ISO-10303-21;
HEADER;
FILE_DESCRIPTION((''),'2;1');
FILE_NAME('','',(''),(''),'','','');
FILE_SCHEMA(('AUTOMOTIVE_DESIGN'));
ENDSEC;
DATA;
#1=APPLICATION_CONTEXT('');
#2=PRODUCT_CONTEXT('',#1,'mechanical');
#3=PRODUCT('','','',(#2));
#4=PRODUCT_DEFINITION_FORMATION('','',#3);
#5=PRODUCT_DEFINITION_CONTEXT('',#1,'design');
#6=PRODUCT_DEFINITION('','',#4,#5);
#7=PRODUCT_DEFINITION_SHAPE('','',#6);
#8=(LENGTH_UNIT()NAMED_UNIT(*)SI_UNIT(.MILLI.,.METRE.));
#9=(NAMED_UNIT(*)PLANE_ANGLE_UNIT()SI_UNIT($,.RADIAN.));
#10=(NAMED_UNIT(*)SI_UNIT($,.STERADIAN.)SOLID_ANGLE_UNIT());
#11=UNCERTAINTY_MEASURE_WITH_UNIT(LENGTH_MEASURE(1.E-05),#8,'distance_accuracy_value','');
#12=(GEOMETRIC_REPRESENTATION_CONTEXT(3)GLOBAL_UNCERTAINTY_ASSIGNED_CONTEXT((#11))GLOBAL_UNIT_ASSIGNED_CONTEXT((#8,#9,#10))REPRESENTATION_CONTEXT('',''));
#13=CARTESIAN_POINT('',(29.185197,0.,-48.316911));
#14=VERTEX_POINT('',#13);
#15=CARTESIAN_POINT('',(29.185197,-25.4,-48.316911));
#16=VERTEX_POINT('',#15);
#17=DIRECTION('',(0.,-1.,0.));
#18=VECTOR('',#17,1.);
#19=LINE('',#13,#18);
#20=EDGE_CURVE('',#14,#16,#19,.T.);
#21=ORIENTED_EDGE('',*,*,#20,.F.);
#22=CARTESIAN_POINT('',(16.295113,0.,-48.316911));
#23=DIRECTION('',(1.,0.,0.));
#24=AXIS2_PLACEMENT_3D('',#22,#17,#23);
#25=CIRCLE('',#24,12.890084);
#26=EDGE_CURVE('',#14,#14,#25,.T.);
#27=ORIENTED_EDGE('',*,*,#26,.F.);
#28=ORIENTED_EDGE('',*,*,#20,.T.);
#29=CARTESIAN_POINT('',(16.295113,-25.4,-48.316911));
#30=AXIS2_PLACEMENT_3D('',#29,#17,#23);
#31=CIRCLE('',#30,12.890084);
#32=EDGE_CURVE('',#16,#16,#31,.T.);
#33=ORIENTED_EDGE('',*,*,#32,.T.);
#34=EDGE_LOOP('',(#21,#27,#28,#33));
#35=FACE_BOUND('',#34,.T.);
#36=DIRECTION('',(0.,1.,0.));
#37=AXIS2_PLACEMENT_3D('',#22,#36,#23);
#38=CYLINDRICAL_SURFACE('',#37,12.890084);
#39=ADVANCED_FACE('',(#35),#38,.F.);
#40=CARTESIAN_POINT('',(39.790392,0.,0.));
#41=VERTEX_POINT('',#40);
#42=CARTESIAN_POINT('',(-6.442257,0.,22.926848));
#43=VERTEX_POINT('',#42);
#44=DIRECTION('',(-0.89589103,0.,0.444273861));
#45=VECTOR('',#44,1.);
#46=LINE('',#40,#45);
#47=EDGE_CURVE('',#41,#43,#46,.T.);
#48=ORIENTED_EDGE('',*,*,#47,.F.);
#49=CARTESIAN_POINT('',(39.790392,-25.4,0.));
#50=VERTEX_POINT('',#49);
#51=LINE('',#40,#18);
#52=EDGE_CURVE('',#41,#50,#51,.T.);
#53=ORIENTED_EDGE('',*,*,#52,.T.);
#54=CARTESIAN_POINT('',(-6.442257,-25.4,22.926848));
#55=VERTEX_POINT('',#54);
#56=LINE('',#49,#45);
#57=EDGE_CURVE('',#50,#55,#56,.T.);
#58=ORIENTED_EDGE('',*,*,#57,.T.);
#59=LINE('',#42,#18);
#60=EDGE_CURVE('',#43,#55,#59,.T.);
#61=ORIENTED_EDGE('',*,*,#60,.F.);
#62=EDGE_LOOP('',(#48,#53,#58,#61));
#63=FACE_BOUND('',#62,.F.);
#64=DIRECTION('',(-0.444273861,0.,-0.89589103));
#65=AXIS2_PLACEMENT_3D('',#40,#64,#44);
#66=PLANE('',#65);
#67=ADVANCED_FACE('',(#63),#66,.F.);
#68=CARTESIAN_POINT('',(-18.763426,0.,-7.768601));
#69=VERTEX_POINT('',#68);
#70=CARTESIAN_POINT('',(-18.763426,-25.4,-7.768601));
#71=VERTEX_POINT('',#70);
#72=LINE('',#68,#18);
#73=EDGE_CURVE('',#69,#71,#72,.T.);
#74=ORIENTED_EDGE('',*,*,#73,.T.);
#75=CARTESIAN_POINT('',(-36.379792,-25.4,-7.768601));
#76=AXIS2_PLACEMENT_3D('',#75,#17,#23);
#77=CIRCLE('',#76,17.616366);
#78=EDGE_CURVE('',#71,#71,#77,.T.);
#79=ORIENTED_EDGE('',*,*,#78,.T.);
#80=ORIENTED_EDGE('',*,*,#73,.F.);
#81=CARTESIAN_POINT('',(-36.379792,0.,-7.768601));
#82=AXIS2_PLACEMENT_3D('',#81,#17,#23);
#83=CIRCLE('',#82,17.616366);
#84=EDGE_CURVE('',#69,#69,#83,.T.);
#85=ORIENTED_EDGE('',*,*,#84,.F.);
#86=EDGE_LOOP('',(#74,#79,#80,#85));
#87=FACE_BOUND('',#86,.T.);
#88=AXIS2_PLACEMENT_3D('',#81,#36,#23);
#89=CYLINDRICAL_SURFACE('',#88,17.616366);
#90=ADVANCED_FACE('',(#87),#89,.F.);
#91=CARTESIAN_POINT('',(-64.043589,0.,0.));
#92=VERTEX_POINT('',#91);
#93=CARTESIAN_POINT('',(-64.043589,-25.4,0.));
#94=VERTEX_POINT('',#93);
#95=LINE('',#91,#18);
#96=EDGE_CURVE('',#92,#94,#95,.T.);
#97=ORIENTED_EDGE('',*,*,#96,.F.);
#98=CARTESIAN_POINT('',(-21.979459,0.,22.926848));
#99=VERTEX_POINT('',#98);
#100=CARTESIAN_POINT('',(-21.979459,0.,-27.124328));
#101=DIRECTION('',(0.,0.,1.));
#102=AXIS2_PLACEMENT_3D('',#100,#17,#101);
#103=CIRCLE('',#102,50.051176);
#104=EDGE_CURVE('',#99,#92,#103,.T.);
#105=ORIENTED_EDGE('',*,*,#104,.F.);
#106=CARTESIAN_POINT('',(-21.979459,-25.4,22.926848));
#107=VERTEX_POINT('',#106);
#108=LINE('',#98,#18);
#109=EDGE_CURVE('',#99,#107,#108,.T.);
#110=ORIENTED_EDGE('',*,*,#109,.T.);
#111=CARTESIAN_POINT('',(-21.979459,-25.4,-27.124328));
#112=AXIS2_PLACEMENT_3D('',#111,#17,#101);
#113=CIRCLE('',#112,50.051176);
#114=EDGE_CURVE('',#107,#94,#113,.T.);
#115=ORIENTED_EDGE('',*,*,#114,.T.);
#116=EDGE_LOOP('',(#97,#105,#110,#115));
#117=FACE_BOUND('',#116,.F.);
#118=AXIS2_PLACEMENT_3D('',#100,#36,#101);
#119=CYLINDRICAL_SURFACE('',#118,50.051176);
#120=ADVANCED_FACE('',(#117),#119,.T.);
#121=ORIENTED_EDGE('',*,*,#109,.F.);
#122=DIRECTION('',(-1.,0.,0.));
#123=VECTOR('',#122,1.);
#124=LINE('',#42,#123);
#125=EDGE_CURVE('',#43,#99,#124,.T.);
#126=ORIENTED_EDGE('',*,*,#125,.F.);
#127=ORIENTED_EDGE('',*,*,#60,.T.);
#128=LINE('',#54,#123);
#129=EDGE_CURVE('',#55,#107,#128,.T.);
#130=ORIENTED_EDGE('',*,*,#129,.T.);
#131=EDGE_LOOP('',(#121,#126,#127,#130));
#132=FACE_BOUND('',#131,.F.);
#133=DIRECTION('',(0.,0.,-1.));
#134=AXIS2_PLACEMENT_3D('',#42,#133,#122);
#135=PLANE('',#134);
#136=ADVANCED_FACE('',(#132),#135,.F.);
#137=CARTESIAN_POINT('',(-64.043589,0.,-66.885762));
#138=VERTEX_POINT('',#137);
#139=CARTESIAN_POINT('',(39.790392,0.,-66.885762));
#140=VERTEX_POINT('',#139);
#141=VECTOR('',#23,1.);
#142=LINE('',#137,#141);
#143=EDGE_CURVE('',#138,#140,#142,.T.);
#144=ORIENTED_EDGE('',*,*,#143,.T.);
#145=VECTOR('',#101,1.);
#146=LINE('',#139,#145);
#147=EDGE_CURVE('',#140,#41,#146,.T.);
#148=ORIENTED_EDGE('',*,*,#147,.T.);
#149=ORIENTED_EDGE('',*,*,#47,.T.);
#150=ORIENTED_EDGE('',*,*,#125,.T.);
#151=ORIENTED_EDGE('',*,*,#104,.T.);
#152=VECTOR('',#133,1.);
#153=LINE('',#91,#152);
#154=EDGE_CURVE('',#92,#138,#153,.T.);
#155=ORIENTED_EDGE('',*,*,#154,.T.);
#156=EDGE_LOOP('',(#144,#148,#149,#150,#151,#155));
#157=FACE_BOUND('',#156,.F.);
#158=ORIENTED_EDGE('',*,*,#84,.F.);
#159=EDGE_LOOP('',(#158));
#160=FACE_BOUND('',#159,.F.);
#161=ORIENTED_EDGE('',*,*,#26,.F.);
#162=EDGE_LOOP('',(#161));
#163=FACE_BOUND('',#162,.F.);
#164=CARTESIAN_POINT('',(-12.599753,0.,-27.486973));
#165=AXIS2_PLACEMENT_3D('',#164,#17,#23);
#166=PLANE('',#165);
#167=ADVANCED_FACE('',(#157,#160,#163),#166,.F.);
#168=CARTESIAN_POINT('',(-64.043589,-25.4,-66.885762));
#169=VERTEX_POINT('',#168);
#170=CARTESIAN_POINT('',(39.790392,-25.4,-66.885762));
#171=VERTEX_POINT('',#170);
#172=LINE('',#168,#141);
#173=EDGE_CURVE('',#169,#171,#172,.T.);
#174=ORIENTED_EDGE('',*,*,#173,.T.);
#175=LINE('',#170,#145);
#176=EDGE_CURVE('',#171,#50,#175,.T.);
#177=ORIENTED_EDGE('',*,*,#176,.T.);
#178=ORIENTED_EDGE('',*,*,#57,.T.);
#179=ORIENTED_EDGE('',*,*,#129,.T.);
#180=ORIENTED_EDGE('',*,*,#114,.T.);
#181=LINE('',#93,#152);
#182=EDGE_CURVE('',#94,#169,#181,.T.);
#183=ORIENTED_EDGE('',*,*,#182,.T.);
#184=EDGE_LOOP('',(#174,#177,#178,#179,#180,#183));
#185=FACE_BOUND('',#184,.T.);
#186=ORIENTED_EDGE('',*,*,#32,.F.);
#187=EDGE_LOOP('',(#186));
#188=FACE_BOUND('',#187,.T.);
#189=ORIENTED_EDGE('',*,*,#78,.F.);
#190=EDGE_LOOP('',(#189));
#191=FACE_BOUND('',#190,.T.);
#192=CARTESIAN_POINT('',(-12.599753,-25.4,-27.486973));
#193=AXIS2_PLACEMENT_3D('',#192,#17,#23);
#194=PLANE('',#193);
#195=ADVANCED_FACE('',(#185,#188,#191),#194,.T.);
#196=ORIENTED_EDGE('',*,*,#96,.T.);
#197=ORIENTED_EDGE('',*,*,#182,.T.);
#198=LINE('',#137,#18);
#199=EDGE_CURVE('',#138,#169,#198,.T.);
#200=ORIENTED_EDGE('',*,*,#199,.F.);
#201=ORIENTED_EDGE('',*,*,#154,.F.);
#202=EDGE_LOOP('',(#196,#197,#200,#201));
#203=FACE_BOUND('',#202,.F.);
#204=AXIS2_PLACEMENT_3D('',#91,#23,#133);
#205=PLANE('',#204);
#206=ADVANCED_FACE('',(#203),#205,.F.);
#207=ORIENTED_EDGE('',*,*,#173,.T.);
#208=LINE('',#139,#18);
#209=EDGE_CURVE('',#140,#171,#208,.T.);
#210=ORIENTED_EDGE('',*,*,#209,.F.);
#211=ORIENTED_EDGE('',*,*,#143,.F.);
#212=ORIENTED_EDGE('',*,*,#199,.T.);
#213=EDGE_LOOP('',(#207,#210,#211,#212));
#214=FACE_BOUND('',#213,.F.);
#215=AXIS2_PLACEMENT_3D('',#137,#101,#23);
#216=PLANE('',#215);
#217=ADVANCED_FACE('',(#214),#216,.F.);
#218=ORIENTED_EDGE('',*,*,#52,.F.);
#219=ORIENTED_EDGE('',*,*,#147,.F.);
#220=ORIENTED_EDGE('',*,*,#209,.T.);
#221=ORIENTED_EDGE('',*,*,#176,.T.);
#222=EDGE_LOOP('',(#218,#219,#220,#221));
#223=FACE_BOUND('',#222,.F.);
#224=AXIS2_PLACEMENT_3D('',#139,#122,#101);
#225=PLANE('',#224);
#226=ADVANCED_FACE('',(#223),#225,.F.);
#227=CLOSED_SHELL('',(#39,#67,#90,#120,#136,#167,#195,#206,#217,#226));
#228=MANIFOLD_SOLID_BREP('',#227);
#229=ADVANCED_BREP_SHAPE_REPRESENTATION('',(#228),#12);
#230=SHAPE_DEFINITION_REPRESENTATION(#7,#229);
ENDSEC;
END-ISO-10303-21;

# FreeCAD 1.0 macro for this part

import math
import FreeCAD as App
import Part
import Sketcher
from FreeCAD import Vector
Q = App.Units.Quantity

doc = App.newDocument("Part")
params = doc.addObject("Spreadsheet::Sheet", "Params")
for row, (alias, value) in enumerate([
    ("pad1_length", "1 in"),
], start=1):
    params.set(f"A{row}", alias)
    params.set(f"B{row}", "=" + value)
    params.setAlias(f"B{row}", alias)

body = doc.addObject("PartDesign::Body", "Body")

sketch1 = doc.addObject("Sketcher::SketchObject", "Sketch")
body.addObject(sketch1)
sketch1.AttachmentSupport = (doc.XZ_Plane, [""])
sketch1.MapMode = "FlatFace"
sketch1.addGeometry([
    Part.ArcOfCircle(Part.Circle(Vector(-22, -27, 0), Vector(0, 0, 1), 50), math.radians(90), math.radians(147)),
    Part.LineSegment(Vector(-64, 0, 0), Vector(-64, -67, 0)),
    Part.LineSegment(Vector(-64, -67, 0), Vector(40, -67, 0)),
    Part.LineSegment(Vector(40, -67, 0), Vector(40, 0, 0)),
    Part.LineSegment(Vector(40, 0, 0), Vector(-6, 23, 0)),
    Part.LineSegment(Vector(-6, 23, 0), Vector(-22, 23, 0)),
    Part.Circle(Vector(16, -48, 0), Vector(0, 0, 1), 13),
    Part.Circle(Vector(-36, -8, 0), Vector(0, 0, 1), 18),
], False)
sketch1.addConstraint([
    Sketcher.Constraint("Coincident", 0, 2, 1, 1),
    Sketcher.Constraint("Coincident", 1, 2, 2, 1),
    Sketcher.Constraint("Coincident", 2, 2, 3, 1),
    Sketcher.Constraint("Coincident", 3, 2, 4, 1),
    Sketcher.Constraint("Coincident", 4, 2, 5, 1),
    Sketcher.Constraint("Tangent", 5, 2, 0, 1),
    Sketcher.Constraint("Vertical", 1),
    Sketcher.Constraint("Horizontal", 2),
    Sketcher.Constraint("Vertical", 3),
    Sketcher.Constraint("Horizontal", 5),
    Sketcher.Constraint("PointOnObject", 0, 2, -1),
    Sketcher.Constraint("PointOnObject", 3, 2, -1),
    Sketcher.Constraint("Diameter", 6, Q("25.780168 mm")),
    Sketcher.Constraint("Diameter", 7, Q("35.232732 mm")),
    Sketcher.Constraint("DistanceX", 5, 2, 5, 1, Q("15.537202 mm")),
    Sketcher.Constraint("Radius", 0, Q("50.051176 mm")),
    Sketcher.Constraint("DistanceX", 2, 1, 2, 2, Q("103.833981 mm")),
    Sketcher.Constraint("DistanceY", 1, 2, 1, 1, Q("66.885762 mm")),
    Sketcher.Constraint("DistanceY", 7, 3, -1, 1, Q("7.768601 mm")),
    Sketcher.Constraint("DistanceX", 0, 2, 6, 3, Q("80.338702 mm")),
    Sketcher.Constraint("DistanceX", 0, 3, -1, 1, Q("21.979459 mm")),
    Sketcher.Constraint("DistanceY", 6, 3, -1, 1, Q("48.316911 mm")),
    Sketcher.Constraint("DistanceX", 0, 2, -1, 1, Q("64.043589 mm")),
    Sketcher.Constraint("DistanceX", 7, 3, -1, 1, Q("36.379792 mm")),
])
pad1 = doc.addObject("PartDesign::Pad", "Pad")
body.addObject(pad1)
pad1.Profile = sketch1
pad1.setExpression("Length", "Params.pad1_length")

doc.recompute()
